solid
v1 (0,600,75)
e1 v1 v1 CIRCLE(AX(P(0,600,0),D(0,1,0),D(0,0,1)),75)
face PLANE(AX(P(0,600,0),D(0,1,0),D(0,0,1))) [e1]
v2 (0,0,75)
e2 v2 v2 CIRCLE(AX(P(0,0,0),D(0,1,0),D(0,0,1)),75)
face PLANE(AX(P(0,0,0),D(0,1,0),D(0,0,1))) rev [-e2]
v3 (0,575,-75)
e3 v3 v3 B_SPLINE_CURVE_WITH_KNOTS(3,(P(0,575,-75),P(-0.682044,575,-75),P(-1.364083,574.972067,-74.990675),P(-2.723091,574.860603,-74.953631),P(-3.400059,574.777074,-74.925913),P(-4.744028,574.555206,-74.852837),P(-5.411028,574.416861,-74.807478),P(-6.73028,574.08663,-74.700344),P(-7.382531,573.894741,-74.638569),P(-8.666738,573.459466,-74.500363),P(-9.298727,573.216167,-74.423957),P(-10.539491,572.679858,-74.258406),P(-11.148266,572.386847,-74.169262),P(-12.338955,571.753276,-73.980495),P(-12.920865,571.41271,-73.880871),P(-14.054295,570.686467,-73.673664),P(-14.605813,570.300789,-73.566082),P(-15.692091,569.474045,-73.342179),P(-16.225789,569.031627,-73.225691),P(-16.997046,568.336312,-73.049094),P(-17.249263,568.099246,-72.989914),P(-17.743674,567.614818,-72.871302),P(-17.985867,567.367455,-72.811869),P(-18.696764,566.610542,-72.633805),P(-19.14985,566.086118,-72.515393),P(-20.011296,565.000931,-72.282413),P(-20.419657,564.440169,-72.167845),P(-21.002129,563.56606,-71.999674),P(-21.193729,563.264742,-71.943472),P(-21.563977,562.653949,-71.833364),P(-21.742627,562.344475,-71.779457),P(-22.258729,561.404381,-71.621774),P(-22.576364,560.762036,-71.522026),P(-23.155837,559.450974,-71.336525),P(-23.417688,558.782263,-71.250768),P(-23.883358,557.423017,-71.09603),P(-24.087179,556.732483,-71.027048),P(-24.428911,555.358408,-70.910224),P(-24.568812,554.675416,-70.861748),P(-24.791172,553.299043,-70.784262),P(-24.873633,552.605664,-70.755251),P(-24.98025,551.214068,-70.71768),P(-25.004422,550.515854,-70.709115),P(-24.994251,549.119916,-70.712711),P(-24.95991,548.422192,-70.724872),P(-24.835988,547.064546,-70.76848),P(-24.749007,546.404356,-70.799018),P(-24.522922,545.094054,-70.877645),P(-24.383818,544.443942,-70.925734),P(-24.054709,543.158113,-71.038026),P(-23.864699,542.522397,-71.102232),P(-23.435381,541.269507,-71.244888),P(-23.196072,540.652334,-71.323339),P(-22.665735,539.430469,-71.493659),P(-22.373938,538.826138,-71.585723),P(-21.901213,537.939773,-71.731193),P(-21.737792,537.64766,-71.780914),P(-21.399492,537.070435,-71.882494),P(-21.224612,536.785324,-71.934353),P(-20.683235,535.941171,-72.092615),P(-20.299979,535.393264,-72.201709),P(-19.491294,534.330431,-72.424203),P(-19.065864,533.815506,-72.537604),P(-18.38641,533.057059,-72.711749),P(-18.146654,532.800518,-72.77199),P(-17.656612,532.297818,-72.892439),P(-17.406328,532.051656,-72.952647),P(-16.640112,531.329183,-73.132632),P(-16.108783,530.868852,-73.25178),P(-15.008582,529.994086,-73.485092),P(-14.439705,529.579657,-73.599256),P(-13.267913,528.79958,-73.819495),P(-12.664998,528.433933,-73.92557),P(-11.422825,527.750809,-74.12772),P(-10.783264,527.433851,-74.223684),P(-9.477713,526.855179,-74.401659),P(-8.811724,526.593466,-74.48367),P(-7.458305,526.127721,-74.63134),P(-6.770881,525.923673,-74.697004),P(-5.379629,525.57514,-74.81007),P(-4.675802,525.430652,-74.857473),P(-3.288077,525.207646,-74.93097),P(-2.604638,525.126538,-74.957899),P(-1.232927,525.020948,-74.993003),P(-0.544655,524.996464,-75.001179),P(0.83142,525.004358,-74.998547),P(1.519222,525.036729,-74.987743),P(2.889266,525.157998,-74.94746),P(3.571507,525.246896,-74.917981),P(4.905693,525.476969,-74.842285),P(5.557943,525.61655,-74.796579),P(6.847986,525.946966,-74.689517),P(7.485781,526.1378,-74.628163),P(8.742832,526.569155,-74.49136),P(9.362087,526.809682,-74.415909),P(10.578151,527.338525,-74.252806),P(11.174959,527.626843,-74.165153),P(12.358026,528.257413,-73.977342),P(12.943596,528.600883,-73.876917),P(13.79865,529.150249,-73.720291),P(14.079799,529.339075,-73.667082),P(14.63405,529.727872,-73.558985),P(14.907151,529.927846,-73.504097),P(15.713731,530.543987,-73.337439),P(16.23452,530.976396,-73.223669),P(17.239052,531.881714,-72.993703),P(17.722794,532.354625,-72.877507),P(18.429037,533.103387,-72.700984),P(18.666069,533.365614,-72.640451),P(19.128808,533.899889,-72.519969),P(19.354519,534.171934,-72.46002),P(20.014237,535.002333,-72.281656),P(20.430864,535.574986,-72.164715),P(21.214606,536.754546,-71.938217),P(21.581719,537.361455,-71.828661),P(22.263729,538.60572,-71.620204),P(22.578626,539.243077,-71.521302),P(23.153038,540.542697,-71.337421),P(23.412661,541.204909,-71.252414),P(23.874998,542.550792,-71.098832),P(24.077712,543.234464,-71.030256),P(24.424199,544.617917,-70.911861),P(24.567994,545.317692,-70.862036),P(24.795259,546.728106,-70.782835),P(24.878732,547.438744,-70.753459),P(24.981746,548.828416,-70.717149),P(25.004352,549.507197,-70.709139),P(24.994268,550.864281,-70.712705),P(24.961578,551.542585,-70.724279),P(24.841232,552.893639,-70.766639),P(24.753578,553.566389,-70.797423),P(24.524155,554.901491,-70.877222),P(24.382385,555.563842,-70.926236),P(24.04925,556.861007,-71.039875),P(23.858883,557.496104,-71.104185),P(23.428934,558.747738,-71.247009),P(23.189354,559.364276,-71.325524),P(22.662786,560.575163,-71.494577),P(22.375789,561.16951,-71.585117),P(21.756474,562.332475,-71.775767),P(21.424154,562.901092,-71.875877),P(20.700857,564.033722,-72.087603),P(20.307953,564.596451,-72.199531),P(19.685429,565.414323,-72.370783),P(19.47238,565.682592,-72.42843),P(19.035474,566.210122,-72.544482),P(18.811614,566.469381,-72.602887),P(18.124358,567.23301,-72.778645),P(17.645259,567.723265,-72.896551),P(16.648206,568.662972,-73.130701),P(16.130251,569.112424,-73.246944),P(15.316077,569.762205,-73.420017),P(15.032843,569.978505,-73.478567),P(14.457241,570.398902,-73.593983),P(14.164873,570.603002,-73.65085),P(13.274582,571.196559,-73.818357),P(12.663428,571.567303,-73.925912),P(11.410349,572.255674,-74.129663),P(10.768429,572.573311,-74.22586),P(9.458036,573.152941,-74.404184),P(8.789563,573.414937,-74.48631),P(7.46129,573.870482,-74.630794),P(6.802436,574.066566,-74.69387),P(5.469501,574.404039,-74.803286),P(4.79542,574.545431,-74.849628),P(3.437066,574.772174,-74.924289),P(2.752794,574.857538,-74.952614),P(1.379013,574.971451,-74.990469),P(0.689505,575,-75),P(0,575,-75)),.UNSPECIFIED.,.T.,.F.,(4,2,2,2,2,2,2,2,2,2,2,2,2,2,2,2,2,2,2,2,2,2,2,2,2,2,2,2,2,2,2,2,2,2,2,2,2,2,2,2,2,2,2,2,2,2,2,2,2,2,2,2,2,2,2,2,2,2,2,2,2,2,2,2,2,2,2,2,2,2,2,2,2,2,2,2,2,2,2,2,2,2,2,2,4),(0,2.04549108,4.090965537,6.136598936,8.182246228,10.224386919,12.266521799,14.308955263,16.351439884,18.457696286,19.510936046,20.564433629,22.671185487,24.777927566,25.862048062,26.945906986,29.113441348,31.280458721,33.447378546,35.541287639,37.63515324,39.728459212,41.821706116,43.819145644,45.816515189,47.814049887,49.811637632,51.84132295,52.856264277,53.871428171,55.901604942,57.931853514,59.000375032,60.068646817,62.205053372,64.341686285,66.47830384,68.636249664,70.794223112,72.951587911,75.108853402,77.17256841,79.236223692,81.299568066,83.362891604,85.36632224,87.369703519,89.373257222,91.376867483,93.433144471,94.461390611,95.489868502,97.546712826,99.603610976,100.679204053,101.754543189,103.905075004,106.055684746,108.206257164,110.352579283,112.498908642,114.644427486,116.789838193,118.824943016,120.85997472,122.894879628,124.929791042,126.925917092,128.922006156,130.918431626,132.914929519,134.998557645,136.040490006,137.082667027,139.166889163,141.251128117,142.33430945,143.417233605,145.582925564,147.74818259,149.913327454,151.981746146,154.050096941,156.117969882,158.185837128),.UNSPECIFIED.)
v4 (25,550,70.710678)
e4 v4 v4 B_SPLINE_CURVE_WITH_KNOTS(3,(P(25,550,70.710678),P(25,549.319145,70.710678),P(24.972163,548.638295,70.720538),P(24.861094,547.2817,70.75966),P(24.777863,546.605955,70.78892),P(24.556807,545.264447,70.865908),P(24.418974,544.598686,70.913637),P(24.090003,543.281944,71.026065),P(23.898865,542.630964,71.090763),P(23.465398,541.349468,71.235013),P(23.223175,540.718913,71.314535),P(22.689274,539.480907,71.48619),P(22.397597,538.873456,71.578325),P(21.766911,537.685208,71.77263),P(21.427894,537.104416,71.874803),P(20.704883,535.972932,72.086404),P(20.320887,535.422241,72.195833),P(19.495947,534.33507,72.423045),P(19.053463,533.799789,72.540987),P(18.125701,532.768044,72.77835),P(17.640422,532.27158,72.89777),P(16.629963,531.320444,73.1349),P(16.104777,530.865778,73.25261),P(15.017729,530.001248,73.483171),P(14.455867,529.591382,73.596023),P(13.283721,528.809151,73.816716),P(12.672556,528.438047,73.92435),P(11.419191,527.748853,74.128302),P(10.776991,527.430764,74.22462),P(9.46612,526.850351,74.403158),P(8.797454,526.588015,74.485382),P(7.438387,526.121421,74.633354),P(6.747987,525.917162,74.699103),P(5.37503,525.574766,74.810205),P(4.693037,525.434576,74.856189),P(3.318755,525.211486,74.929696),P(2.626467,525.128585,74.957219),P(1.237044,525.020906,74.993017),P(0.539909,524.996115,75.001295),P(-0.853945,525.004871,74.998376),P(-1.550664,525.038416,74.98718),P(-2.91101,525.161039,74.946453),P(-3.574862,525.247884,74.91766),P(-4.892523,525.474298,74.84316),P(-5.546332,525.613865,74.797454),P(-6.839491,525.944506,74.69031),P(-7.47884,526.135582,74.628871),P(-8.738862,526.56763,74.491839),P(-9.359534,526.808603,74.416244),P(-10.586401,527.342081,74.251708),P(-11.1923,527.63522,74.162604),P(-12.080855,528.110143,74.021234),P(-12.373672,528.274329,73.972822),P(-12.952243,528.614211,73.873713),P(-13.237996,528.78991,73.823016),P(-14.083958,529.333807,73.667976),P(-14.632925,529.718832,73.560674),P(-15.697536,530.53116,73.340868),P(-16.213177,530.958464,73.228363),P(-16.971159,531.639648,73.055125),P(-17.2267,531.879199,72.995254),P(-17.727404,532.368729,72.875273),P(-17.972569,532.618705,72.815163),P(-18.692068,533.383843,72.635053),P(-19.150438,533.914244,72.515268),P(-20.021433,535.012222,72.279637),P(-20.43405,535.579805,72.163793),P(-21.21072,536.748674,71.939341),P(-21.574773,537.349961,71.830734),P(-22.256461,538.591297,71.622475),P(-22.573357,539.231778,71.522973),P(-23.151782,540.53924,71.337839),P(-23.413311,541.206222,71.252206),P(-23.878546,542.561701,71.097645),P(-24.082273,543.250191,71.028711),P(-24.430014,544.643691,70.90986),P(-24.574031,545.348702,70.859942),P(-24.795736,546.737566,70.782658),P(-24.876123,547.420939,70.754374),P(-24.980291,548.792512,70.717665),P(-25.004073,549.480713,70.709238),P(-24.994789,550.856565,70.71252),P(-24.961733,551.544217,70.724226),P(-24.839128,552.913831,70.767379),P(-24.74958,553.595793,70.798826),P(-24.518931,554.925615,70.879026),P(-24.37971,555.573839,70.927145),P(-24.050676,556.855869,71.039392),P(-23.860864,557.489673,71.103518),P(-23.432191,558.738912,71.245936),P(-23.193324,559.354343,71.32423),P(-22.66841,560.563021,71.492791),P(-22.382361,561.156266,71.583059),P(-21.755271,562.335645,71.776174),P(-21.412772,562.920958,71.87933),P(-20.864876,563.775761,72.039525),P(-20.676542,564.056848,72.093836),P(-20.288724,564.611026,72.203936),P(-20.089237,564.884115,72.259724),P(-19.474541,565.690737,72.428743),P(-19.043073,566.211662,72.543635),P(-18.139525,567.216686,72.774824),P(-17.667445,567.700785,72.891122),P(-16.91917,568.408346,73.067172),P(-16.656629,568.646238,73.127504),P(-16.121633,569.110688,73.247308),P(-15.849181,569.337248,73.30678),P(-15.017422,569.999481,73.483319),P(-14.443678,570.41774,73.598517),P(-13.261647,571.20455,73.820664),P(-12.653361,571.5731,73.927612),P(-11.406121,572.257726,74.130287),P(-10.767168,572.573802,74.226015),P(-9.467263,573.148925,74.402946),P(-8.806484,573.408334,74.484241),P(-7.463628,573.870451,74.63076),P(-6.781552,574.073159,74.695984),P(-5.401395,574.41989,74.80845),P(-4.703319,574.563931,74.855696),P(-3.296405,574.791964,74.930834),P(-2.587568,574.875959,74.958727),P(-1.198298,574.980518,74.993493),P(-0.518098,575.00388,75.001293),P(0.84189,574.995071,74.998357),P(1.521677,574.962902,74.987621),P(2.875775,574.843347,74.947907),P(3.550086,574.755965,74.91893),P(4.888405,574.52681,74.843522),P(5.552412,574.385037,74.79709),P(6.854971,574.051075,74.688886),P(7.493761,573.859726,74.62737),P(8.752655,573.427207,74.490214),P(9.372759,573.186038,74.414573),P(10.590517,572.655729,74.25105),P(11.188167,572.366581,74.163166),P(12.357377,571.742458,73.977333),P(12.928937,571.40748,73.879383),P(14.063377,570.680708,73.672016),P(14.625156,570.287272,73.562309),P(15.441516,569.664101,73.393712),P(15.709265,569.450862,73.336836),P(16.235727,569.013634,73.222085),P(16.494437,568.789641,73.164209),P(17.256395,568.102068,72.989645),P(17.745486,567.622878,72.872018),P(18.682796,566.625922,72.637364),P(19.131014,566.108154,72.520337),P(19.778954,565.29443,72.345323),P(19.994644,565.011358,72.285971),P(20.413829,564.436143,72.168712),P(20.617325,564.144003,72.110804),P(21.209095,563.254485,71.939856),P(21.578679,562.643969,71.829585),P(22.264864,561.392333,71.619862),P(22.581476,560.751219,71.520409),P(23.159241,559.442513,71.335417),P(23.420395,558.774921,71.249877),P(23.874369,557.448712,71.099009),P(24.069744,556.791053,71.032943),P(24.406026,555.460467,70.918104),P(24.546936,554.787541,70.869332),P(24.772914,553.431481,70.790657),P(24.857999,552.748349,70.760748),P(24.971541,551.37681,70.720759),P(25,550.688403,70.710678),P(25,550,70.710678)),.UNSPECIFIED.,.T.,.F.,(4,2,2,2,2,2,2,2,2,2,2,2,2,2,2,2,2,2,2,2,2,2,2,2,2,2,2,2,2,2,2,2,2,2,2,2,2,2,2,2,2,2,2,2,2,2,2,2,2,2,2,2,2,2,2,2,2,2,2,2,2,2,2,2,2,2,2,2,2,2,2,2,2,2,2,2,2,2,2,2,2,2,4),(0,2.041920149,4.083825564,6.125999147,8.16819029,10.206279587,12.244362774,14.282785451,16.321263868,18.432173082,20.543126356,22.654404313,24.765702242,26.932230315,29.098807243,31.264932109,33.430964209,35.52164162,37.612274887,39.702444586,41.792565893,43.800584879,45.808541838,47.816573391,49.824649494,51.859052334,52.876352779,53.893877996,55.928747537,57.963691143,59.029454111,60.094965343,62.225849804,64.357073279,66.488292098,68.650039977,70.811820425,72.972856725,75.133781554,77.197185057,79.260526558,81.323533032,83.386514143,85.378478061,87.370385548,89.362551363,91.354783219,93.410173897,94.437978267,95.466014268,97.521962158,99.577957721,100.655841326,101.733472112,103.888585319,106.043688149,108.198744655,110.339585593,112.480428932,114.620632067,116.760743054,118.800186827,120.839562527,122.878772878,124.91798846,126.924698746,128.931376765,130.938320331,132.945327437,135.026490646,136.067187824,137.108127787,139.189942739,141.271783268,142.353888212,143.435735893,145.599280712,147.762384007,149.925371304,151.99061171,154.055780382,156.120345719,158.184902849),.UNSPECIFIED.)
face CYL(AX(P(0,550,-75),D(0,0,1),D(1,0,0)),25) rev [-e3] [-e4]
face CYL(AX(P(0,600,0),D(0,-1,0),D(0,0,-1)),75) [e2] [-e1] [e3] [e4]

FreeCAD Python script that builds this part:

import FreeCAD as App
import Part
import Sketcher
from FreeCAD import Vector
Q = App.Units.Quantity

doc = App.newDocument("Part")
params = doc.addObject("Spreadsheet::Sheet", "Params")
for row, (alias, value) in enumerate([
    ("sketch1_diameter", "150 mm"),
    ("pad1_length", "600 mm"),
    ("sketch2_diameter", "50 mm"),
], start=1):
    params.set(f"A{row}", alias)
    params.set(f"B{row}", "=" + value)
    params.setAlias(f"B{row}", alias)

body = doc.addObject("PartDesign::Body", "Body")

sketch1 = body.newObject("Sketcher::SketchObject", "Sketch")
sketch1.AttachmentSupport = (doc.getObject("XZ_Plane"), [""])
sketch1.MapMode = "FlatFace"
sketch1.addGeometry(Part.Circle(Vector(0, 0, 0), Vector(0, 0, 1), 75), False)
sketch1.addConstraint([
    Sketcher.Constraint("Coincident", 0, 3, -1, 1),
    Sketcher.Constraint("Diameter", 0, Q("150 mm")),
])
sketch1.setExpression("Constraints[1]", "Params.sketch1_diameter")
pad1 = body.newObject("PartDesign::Pad", "Pad")
pad1.Profile = sketch1
pad1.setExpression("Length", "Params.pad1_length")
pad1.Reversed = True

sketch2 = body.newObject("Sketcher::SketchObject", "Sketch001")
sketch2.AttachmentSupport = (doc.getObject("XY_Plane"), [""])
sketch2.MapMode = "FlatFace"
sketch2.addGeometry(Part.Circle(Vector(0, 550, 0), Vector(0, 0, 1), 25), False)
sketch2.addConstraint([
    Sketcher.Constraint("PointOnObject", 0, 3, -2),
    Sketcher.Constraint("Diameter", 0, Q("50 mm")),
    Sketcher.Constraint("DistanceY", -1, 1, 0, 3, Q("550 mm")),
])
sketch2.setExpression("Constraints[1]", "Params.sketch2_diameter")
pocket1 = body.newObject("PartDesign::Pocket", "Pocket")
pocket1.Profile = sketch2
pocket1.Type = "ThroughAll"
pocket1.Midplane = True

doc.recompute()
